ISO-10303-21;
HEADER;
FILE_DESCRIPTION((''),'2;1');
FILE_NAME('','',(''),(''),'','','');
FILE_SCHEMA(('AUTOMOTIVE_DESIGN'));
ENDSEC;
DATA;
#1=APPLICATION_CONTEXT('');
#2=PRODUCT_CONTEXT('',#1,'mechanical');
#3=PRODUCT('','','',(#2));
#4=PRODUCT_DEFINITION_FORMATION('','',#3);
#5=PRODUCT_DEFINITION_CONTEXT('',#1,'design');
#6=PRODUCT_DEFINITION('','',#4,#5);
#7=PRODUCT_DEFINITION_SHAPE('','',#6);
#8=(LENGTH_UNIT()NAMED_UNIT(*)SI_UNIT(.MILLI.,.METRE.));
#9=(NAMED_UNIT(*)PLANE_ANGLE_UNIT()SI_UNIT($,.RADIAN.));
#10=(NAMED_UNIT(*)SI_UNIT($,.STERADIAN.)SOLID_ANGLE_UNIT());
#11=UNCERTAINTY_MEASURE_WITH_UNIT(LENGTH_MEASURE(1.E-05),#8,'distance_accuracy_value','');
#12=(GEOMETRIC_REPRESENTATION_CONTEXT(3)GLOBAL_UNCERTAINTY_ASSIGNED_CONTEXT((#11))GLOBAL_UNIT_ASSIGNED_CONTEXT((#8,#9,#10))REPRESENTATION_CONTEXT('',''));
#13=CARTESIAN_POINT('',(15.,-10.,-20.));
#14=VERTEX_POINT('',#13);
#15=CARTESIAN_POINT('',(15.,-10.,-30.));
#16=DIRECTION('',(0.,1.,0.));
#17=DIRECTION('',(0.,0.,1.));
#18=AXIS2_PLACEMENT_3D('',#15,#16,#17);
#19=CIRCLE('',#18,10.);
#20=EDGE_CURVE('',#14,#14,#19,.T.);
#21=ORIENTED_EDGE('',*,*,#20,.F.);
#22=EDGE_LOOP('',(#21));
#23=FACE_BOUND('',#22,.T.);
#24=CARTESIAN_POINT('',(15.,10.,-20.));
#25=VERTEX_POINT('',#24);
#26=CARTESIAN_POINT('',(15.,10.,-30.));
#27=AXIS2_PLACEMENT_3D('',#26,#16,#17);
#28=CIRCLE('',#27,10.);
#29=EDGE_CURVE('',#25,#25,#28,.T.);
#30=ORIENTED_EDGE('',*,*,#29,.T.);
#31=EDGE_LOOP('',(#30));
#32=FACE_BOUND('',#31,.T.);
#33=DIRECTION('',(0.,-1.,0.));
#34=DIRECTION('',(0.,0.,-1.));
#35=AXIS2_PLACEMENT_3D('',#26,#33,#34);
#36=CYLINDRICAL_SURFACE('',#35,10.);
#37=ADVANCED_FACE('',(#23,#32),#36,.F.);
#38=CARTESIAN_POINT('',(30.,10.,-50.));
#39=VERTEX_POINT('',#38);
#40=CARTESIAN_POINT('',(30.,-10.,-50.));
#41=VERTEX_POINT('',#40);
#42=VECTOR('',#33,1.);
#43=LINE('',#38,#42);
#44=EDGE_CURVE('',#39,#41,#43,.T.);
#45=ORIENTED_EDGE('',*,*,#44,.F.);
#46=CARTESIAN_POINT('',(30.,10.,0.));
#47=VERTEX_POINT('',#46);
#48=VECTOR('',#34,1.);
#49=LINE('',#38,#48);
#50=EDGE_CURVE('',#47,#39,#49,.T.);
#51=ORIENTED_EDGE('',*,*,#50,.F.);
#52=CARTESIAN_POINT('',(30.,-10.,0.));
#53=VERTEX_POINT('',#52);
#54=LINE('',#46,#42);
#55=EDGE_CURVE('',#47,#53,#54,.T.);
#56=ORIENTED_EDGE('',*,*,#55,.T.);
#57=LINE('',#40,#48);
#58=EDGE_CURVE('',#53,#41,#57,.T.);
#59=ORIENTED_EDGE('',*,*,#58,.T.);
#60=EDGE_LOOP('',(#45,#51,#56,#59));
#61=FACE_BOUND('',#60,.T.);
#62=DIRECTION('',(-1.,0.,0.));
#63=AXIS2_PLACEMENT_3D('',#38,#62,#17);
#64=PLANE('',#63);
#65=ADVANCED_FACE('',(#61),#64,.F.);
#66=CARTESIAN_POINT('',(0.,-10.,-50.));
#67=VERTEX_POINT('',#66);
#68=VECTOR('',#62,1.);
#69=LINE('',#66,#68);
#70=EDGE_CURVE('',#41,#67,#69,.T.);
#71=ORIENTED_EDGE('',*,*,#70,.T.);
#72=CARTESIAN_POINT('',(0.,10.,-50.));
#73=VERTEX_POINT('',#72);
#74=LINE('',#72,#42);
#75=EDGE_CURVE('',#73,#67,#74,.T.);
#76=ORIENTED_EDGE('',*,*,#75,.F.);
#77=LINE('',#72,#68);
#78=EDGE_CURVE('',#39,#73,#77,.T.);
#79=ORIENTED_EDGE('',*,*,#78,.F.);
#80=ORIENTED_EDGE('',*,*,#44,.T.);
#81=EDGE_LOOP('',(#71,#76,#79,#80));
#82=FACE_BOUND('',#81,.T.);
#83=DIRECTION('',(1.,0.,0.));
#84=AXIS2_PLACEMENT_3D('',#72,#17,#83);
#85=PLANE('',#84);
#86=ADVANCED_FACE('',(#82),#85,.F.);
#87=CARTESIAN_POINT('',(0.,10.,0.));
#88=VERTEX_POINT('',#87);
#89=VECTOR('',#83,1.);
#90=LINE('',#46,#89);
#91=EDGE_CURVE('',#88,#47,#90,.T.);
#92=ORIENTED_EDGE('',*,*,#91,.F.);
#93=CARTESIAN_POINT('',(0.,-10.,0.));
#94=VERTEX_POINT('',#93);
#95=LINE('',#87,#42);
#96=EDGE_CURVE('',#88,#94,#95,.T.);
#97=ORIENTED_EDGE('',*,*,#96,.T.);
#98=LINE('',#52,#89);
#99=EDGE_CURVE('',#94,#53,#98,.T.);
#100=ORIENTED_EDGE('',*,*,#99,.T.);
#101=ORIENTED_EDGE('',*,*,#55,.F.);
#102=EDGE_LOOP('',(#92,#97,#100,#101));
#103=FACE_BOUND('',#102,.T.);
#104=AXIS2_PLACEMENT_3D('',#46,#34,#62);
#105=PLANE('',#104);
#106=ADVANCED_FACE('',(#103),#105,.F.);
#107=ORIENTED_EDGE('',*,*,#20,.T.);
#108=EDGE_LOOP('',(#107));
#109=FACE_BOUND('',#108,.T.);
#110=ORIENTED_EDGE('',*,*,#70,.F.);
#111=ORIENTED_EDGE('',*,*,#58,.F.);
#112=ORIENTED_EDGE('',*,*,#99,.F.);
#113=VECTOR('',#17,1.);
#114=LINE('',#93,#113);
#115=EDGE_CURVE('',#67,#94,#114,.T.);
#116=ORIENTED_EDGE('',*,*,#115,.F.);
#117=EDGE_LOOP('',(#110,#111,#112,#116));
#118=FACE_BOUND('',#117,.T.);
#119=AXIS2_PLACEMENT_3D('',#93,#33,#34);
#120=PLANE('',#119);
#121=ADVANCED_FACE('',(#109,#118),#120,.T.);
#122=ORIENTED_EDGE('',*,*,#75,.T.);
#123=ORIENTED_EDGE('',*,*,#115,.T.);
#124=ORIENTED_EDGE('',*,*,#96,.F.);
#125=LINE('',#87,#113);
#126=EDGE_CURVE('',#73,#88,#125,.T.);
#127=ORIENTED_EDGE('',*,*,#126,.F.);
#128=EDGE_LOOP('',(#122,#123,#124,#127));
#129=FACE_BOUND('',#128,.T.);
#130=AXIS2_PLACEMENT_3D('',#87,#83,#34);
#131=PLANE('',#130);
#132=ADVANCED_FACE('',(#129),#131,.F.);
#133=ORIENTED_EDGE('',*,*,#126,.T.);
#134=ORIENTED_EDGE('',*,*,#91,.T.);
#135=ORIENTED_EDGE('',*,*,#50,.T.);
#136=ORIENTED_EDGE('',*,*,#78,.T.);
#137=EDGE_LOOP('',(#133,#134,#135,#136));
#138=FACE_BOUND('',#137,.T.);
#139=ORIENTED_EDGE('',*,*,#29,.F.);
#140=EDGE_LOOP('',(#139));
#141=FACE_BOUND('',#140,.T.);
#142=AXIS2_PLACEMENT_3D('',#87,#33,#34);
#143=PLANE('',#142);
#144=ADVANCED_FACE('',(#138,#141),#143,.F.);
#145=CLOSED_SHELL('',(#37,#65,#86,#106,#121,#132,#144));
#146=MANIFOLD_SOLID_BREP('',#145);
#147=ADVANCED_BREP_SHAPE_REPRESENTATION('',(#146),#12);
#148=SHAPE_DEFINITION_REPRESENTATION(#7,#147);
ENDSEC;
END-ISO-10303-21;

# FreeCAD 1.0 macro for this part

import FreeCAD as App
import Part
import Sketcher
from FreeCAD import Vector
Q = App.Units.Quantity


def add_polygon(sketch, points):
    """Adds a closed chain of lines whose ends are joined by coincident constraints."""
    first, n = sketch.GeometryCount, len(points)
    for a, b in zip(points, points[1:] + points[:1]):
        sketch.addGeometry(Part.LineSegment(App.Vector(*a, 0), App.Vector(*b, 0)), False)
    for i in range(n):
        sketch.addConstraint(Sketcher.Constraint("Coincident", first + i, 2, first + (i + 1) % n, 1))

doc = App.newDocument("Part")
body = doc.addObject("PartDesign::Body", "Body")

# Sketch on XZ plane
sketch1 = body.newObject("Sketcher::SketchObject", "Sketch")
sketch1.AttachmentSupport = (doc.getObject("XZ_Plane"), [""])
sketch1.MapMode = "FlatFace"
add_polygon(sketch1, [(0, -50), (0, 0), (30, 0), (30, -50)])  # lines 0-3
sketch1.addGeometry(Part.Circle(Vector(15, -30, 0), Vector(0, 0, 1), 10), False)  # 4
sketch1.addConstraint([
    Sketcher.Constraint("Vertical", 0),
    Sketcher.Constraint("Horizontal", 1),
    Sketcher.Constraint("Vertical", 2),
    Sketcher.Constraint("Horizontal", 3),
    Sketcher.Constraint("Coincident", 0, 2, -1, 1),
    Sketcher.Constraint("Diameter", 4, Q("20 mm")),
    Sketcher.Constraint("DistanceX", 1, 1, 1, 2, Q("30 mm")),
    Sketcher.Constraint("DistanceY", 0, 1, 0, 2, Q("50 mm")),
    Sketcher.Constraint("DistanceX", -1, 1, 4, 3, Q("15 mm")),
    Sketcher.Constraint("DistanceY", 4, 3, -1, 1, Q("30 mm")),
])
pad1 = body.newObject("PartDesign::Pad", "Pad")
pad1.Profile = sketch1
pad1.Length = 20
pad1.Midplane = True

doc.recompute()
